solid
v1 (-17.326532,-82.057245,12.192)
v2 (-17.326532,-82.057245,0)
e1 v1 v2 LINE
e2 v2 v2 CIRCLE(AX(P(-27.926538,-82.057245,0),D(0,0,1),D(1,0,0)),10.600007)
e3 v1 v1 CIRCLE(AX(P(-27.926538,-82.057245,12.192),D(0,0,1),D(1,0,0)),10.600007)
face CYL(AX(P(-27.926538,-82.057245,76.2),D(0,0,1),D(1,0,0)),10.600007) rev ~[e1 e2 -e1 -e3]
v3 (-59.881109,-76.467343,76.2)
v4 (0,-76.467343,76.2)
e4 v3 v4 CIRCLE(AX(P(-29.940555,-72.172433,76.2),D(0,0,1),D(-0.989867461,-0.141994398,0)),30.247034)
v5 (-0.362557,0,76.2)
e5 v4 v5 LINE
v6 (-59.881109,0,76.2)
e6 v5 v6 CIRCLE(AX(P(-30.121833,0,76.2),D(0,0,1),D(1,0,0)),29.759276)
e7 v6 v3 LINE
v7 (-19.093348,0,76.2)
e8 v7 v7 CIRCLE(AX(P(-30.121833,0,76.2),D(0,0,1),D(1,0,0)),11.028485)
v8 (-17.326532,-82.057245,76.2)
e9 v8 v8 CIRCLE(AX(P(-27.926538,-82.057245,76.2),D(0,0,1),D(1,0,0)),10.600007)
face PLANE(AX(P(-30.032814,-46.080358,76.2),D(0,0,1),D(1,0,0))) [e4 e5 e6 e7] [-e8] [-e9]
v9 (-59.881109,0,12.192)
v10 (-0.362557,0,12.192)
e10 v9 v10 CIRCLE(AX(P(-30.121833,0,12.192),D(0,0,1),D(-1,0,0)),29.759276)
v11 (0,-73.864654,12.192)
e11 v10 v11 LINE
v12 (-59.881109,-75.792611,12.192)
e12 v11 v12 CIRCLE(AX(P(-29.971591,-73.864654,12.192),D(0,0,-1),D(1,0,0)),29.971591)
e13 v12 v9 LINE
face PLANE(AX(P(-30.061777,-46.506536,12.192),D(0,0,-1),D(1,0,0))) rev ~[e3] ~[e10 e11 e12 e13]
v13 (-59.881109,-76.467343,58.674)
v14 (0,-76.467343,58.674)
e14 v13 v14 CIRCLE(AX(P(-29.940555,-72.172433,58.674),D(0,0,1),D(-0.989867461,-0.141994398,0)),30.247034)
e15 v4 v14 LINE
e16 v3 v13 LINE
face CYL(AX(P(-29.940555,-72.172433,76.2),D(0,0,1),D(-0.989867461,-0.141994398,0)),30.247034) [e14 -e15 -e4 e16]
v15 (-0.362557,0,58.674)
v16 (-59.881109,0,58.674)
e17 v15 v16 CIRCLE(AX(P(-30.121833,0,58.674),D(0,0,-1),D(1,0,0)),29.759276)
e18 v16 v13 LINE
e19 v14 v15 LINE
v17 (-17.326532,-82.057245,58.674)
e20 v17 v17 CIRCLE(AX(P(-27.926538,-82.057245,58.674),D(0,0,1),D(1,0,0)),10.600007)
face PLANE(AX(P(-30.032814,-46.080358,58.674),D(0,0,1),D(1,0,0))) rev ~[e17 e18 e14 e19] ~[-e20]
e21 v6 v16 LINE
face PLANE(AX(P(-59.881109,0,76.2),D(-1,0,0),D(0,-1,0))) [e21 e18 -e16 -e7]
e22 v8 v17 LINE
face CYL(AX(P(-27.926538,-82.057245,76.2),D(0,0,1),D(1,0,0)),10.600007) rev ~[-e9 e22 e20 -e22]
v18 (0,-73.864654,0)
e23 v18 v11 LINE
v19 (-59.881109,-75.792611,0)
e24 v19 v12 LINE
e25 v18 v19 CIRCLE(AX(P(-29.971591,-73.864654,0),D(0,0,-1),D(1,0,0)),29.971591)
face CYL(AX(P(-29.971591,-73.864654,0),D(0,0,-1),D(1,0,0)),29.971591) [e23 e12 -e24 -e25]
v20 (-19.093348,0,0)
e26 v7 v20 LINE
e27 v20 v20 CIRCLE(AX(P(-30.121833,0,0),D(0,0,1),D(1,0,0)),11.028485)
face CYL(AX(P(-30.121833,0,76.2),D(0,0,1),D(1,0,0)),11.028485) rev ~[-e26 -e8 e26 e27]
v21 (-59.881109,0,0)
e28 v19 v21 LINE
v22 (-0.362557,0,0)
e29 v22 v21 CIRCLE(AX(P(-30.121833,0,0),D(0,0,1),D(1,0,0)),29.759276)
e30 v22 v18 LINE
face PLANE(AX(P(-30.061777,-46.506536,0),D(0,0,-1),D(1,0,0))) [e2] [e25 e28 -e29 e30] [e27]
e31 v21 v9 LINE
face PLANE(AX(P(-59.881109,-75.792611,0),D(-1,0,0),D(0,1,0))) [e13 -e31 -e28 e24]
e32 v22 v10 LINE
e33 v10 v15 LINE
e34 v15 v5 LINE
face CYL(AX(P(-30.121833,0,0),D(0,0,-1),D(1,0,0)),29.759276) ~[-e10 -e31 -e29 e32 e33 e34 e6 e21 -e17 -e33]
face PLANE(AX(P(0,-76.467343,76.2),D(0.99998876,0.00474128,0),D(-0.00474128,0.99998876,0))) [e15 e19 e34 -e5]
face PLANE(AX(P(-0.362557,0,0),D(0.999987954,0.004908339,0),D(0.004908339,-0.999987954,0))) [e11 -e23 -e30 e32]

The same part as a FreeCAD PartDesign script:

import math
import FreeCAD as App
import Part
import Sketcher
from FreeCAD import Vector
Q = App.Units.Quantity

doc = App.newDocument("Part")
body = doc.addObject("PartDesign::Body", "Body")

sketch1 = doc.addObject("Sketcher::SketchObject", "Sketch")
body.addObject(sketch1)
sketch1.AttachmentSupport = (doc.XY_Plane, [""])
sketch1.MapMode = "FlatFace"
sketch1.addGeometry(Part.Circle(Vector(-30.121833, 0, 0), Vector(0, 0, 1), 29.759276), False)
sketch1.addConstraint([
    Sketcher.Constraint("PointOnObject", 0, 3, -1),
    Sketcher.Constraint("Diameter", 0, 59.518552),
    Sketcher.Constraint("DistanceX", 0, 3, -1, 1, 30.121833),
])
pad1 = doc.addObject("PartDesign::Pad", "Pad")
body.addObject(pad1)
pad1.Profile = sketch1
pad1.Length = Q("3 in")

sketch2 = doc.addObject("Sketcher::SketchObject", "Sketch001")
body.addObject(sketch2)
sketch2.AttachmentSupport = (doc.XY_Plane, [""])
sketch2.MapMode = "FlatFace"
sketch2.AttachmentOffset = App.Placement(Vector(0, 0, 3 * 25.4), App.Rotation())
sketch2.addGeometry(Part.Circle(Vector(-30.121833, 0, 0), Vector(0, 0, 1), 11.028485), False)
sketch2.addConstraint([
    Sketcher.Constraint("PointOnObject", 0, 3, -1),
    Sketcher.Constraint("Diameter", 0, 22.05697),
    Sketcher.Constraint("DistanceX", 0, 3, -1, 1, 30.121833),
])
pocket1 = doc.addObject("PartDesign::Pocket", "Pocket")
body.addObject(pocket1)
pocket1.Profile = sketch2
pocket1.Length = Q("4.73 in")

sketch3 = doc.addObject("Sketcher::SketchObject", "Sketch002")
body.addObject(sketch3)
sketch3.AttachmentSupport = (doc.XY_Plane, [""])
sketch3.MapMode = "FlatFace"
sketch3.addGeometry([
    Part.LineSegment(Vector(-59.881109, -75.792611, 0), Vector(-59.881109, 0, 0)),
    Part.ArcOfCircle(Part.Circle(Vector(-30.121833, 0, 0), Vector(0, 0, 1), 29.759276), math.radians(180), math.radians(360)),
    Part.LineSegment(Vector(-0.362557, 0, 0), Vector(0, -73.864654, 0)),
    Part.ArcOfCircle(Part.Circle(Vector(-29.971591, -73.864654, 0), Vector(0, 0, 1), 29.971591), math.radians(-176.311837), math.radians(0)),
], False)
sketch3.addConstraint([
    Sketcher.Constraint("Tangent", 0, 2, 1, 1),
    Sketcher.Constraint("Coincident", 1, 2, 2, 1),
    Sketcher.Constraint("Coincident", 2, 2, 3, 2),
    Sketcher.Constraint("Coincident", 3, 1, 0, 1),
    Sketcher.Constraint("Vertical", 0),
    Sketcher.Constraint("PointOnObject", 1, 3, -1),
    Sketcher.Constraint("PointOnObject", 1, 2, -1),
    Sketcher.Constraint("PointOnObject", 2, 2, -2),
    Sketcher.Constraint("Horizontal", 3, 3, 2, 2),
    Sketcher.Constraint("Radius", 3, 29.971591),
    Sketcher.Constraint("Radius", 1, 29.759276),
    Sketcher.Constraint("DistanceY", 0, 1, 0, 2, 75.792611),
    Sketcher.Constraint("DistanceX", 0, 2, -1, 1, 59.881109),
])
pad2 = doc.addObject("PartDesign::Pad", "Pad001")
body.addObject(pad2)
pad2.Profile = sketch3
pad2.Length = Q("0.48 in")

sketch4 = doc.addObject("Sketcher::SketchObject", "Sketch003")
body.addObject(sketch4)
sketch4.AttachmentSupport = (doc.XY_Plane, [""])
sketch4.MapMode = "FlatFace"
sketch4.AttachmentOffset = App.Placement(Vector(0, 0, 3 * 25.4), App.Rotation())
sketch4.addGeometry([
    Part.LineSegment(Vector(0, -76.467343, 0), Vector(-0.362557, 0, 0)),
    Part.ArcOfCircle(Part.Circle(Vector(-30.121833, 0, 0), Vector(0, 0, 1), 29.759276), math.radians(180), math.radians(360)),
    Part.LineSegment(Vector(-59.881109, 0, 0), Vector(-59.881109, -76.467343, 0)),
    Part.ArcOfCircle(Part.Circle(Vector(-29.940555, -72.172433, 0), Vector(0, 0, 1), 30.247034), math.radians(-171.83673), math.radians(-8.16327)),
], False)
sketch4.addConstraint([
    Sketcher.Constraint("Coincident", 0, 2, 1, 2),
    Sketcher.Constraint("Tangent", 1, 1, 2, 1),
    Sketcher.Constraint("Coincident", 2, 2, 3, 1),
    Sketcher.Constraint("Coincident", 3, 2, 0, 1),
    Sketcher.Constraint("Vertical", 2),
    Sketcher.Constraint("PointOnObject", 1, 3, -1),
    Sketcher.Constraint("PointOnObject", 0, 2, -1),
    Sketcher.Constraint("PointOnObject", 3, 2, -2),
    Sketcher.Constraint("Horizontal", 2, 2, 3, 2),
    Sketcher.Constraint("Radius", 1, 29.759276),
    Sketcher.Constraint("Radius", 3, 30.247034),
    Sketcher.Constraint("DistanceY", 2, 2, 2, 1, 76.467343),
    Sketcher.Constraint("DistanceX", 1, 1, -1, 1, 59.881109),
])
pad3 = doc.addObject("PartDesign::Pad", "Pad002")
body.addObject(pad3)
pad3.Profile = sketch4
pad3.Length = Q("0.69 in")
pad3.Reversed = True

sketch5 = doc.addObject("Sketcher::SketchObject", "Sketch004")
body.addObject(sketch5)
sketch5.AttachmentSupport = (doc.XY_Plane, [""])
sketch5.MapMode = "FlatFace"
sketch5.AttachmentOffset = App.Placement(Vector(0, 0, 3 * 25.4), App.Rotation())
sketch5.addGeometry(Part.Circle(Vector(-27.926538, -82.057245, 0), Vector(0, 0, 1), 10.600007), False)
sketch5.addConstraint([
    Sketcher.Constraint("Diameter", 0, 21.200013),
    Sketcher.Constraint("DistanceY", 0, 3, -1, 1, Q("3.2306002 in")),
    Sketcher.Constraint("DistanceX", 0, 3, -1, 1, 27.926538),
])
pocket2 = doc.addObject("PartDesign::Pocket", "Pocket001")
body.addObject(pocket2)
pocket2.Profile = sketch5
pocket2.Length = Q("5.85 in")

doc.recompute()
